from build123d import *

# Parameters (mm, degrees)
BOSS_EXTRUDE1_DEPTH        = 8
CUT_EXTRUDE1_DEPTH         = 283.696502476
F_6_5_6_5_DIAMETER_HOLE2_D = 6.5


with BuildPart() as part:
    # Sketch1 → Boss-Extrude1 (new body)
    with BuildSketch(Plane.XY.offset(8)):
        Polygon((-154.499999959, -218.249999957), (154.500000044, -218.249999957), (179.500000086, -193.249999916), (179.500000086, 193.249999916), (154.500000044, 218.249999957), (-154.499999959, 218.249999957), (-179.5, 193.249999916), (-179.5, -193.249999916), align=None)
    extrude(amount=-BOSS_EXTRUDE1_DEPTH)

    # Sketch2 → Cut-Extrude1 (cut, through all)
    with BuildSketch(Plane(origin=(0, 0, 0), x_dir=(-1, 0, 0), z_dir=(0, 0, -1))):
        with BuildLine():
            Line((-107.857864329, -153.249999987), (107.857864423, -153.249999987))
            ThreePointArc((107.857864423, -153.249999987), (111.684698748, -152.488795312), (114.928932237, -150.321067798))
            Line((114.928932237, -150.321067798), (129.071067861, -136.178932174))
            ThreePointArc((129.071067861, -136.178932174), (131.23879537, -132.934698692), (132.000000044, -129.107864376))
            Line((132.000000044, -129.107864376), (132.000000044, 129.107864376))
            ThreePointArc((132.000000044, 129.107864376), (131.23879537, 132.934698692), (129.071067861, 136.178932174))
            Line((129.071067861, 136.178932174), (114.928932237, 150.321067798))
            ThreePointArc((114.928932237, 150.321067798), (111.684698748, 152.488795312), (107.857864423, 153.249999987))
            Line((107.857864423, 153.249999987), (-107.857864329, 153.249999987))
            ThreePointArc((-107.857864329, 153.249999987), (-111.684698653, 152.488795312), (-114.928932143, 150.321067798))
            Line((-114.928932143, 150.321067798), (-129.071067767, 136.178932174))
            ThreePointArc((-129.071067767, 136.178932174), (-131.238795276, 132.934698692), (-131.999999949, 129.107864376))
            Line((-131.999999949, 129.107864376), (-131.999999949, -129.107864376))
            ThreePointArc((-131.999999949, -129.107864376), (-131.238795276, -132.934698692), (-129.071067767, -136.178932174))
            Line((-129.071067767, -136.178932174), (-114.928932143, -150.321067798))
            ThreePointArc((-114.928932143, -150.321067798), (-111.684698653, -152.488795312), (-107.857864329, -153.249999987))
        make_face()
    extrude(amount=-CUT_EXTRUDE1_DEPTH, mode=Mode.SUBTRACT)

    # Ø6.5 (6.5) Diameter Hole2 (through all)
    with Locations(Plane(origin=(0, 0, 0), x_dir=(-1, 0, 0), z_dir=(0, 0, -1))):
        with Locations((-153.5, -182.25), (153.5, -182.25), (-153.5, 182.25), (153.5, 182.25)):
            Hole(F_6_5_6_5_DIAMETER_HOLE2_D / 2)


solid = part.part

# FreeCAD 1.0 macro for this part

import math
import FreeCAD as App
import Part
import Sketcher
from FreeCAD import Vector

doc = App.newDocument("Part")
params = doc.addObject("Spreadsheet::Sheet", "Params")
for row, (alias, value) in enumerate([
    ("sketch1_width", "309 mm"),
    ("sketch1_height", "386.5 mm"),
    ("pad1_length", "8 mm"),
    ("sketch2_radius", "10 mm"),
    ("sketch2_length", "20 mm"),
    ("sketch3_diameter", "6.5 mm"),
    ("hole_diameter", "6.5 mm"),
], start=1):
    params.set(f"A{row}", alias)
    params.set(f"B{row}", "=" + value)
    params.setAlias(f"B{row}", alias)

body = doc.addObject("PartDesign::Body", "Body")

# Sketch on XY plane
sketch1 = body.newObject("Sketcher::SketchObject", "Sketch")
sketch1.AttachmentSupport = (doc.getObject("XY_Plane"), [""])
sketch1.MapMode = "FlatFace"
sketch1.AttachmentOffset = App.Placement(Vector(0, 0, 8), App.Rotation())
sketch1.addGeometry([
    Part.LineSegment(Vector(-154, -218, 0), Vector(155, -218, 0)),  # 0
    Part.LineSegment(Vector(155, -218, 0), Vector(180, -193, 0)),  # 1
    Part.LineSegment(Vector(180, -193, 0), Vector(180, 193, 0)),  # 2
    Part.LineSegment(Vector(180, 193, 0), Vector(155, 218, 0)),  # 3
    Part.LineSegment(Vector(155, 218, 0), Vector(-154, 218, 0)),  # 4
    Part.LineSegment(Vector(-154, 218, 0), Vector(-180, 193, 0)),  # 5
    Part.LineSegment(Vector(-180, 193, 0), Vector(-180, -193, 0)),  # 6
    Part.LineSegment(Vector(-180, -193, 0), Vector(-154, -218, 0)),  # 7
], False)
sketch1.addConstraint([
    Sketcher.Constraint("Coincident", 0, 2, 1, 1),
    Sketcher.Constraint("Coincident", 1, 2, 2, 1),
    Sketcher.Constraint("Coincident", 2, 2, 3, 1),
    Sketcher.Constraint("Coincident", 3, 2, 4, 1),
    Sketcher.Constraint("Coincident", 4, 2, 5, 1),
    Sketcher.Constraint("Coincident", 5, 2, 6, 1),
    Sketcher.Constraint("Coincident", 6, 2, 7, 1),
    Sketcher.Constraint("Coincident", 7, 2, 0, 1),
    Sketcher.Constraint("Horizontal", 0),
    Sketcher.Constraint("Vertical", 2),
    Sketcher.Constraint("Horizontal", 4),
    Sketcher.Constraint("Vertical", 6),
    Sketcher.Constraint("Symmetric", 0, 2, 4, 2, -1, 1),
    Sketcher.Constraint("Symmetric", 1, 2, 5, 2, -1, 1),
    Sketcher.Constraint("Perpendicular", 1, 3),
    Sketcher.Constraint("Perpendicular", 5, 7),
    Sketcher.Constraint("Horizontal", 2, 2, 5, 2),
    Sketcher.Constraint("Horizontal", 1, 2, 6, 2),
    Sketcher.Constraint("Vertical", 0, 2, 3, 2),
    Sketcher.Constraint("DistanceX", 0, 1, 0, 2, 309.0),
    Sketcher.Constraint("DistanceY", 2, 1, 2, 2, 386.5),
    Sketcher.Constraint("DistanceX", 0, 2, 1, 2, 25.0),
])
sketch1.setExpression("Constraints[19]", "Params.sketch1_width")
sketch1.setExpression("Constraints[20]", "Params.sketch1_height")
pad1 = body.newObject("PartDesign::Pad", "Pad")
pad1.Profile = sketch1
pad1.setExpression("Length", "Params.pad1_length")
pad1.Reversed = True

# Sketch on XY plane
sketch2 = body.newObject("Sketcher::SketchObject", "Sketch001")
sketch2.AttachmentSupport = (doc.getObject("XY_Plane"), [""])
sketch2.MapMode = "FlatFace"
sketch2.addGeometry([
    Part.LineSegment(Vector(108, -153, 0), Vector(-108, -153, 0)),  # 0
    Part.ArcOfCircle(Part.Circle(Vector(-108, -143, 0), Vector(0, 0, 1), 10), math.radians(-135), math.radians(-90)),  # 1
    Part.LineSegment(Vector(-115, -150, 0), Vector(-129, -136, 0)),  # 2
    Part.ArcOfCircle(Part.Circle(Vector(-122, -129, 0), Vector(0, 0, 1), 10), math.radians(-180), math.radians(-135)),  # 3
    Part.LineSegment(Vector(-132, -129, 0), Vector(-132, 129, 0)),  # 4
    Part.ArcOfCircle(Part.Circle(Vector(-122, 129, 0), Vector(0, 0, 1), 10), math.radians(135), math.radians(180)),  # 5
    Part.LineSegment(Vector(-129, 136, 0), Vector(-115, 150, 0)),  # 6
    Part.ArcOfCircle(Part.Circle(Vector(-108, 143, 0), Vector(0, 0, 1), 10), math.radians(90), math.radians(135)),  # 7
    Part.LineSegment(Vector(-108, 153, 0), Vector(108, 153, 0)),  # 8
    Part.ArcOfCircle(Part.Circle(Vector(108, 143, 0), Vector(0, 0, 1), 10), math.radians(45), math.radians(90)),  # 9
    Part.LineSegment(Vector(115, 150, 0), Vector(129, 136, 0)),  # 10
    Part.ArcOfCircle(Part.Circle(Vector(122, 129, 0), Vector(0, 0, 1), 10), math.radians(0), math.radians(45)),  # 11
    Part.LineSegment(Vector(132, 129, 0), Vector(132, -129, 0)),  # 12
    Part.ArcOfCircle(Part.Circle(Vector(122, -129, 0), Vector(0, 0, 1), 10), math.radians(-45), math.radians(0)),  # 13
    Part.LineSegment(Vector(129, -136, 0), Vector(115, -150, 0)),  # 14
    Part.ArcOfCircle(Part.Circle(Vector(108, -143, 0), Vector(0, 0, 1), 10), math.radians(-90), math.radians(-45)),  # 15
], False)
sketch2.addConstraint([
    Sketcher.Constraint("Tangent", 0, 2, 1, 2),
    Sketcher.Constraint("Tangent", 1, 1, 2, 1),
    Sketcher.Constraint("Tangent", 2, 2, 3, 2),
    Sketcher.Constraint("Tangent", 3, 1, 4, 1),
    Sketcher.Constraint("Tangent", 4, 2, 5, 2),
    Sketcher.Constraint("Tangent", 5, 1, 6, 1),
    Sketcher.Constraint("Tangent", 6, 2, 7, 2),
    Sketcher.Constraint("Tangent", 7, 1, 8, 1),
    Sketcher.Constraint("Tangent", 8, 2, 9, 2),
    Sketcher.Constraint("Tangent", 9, 1, 10, 1),
    Sketcher.Constraint("Tangent", 10, 2, 11, 2),
    Sketcher.Constraint("Tangent", 11, 1, 12, 1),
    Sketcher.Constraint("Tangent", 12, 2, 13, 2),
    Sketcher.Constraint("Tangent", 13, 1, 14, 1),
    Sketcher.Constraint("Tangent", 14, 2, 15, 2),
    Sketcher.Constraint("Tangent", 15, 1, 0, 1),
    Sketcher.Constraint("Horizontal", 0),
    Sketcher.Constraint("Vertical", 4),
    Sketcher.Constraint("Horizontal", 8),
    Sketcher.Constraint("Vertical", 12),
    Sketcher.Constraint("Equal", 1, 3),
    Sketcher.Constraint("Equal", 3, 5),
    Sketcher.Constraint("Equal", 5, 7),
    Sketcher.Constraint("Equal", 7, 9),
    Sketcher.Constraint("Equal", 9, 11),
    Sketcher.Constraint("Equal", 11, 13),
    Sketcher.Constraint("Equal", 13, 15),
    Sketcher.Constraint("Symmetric", 1, 3, 9, 3, -1, 1),
    Sketcher.Constraint("Symmetric", 3, 3, 11, 3, -1, 1),
    Sketcher.Constraint("Symmetric", 5, 1, 13, 1, -1, 1),
    Sketcher.Constraint("Symmetric", 6, 2, 9, 1, -2),
    Sketcher.Constraint("Perpendicular", 2, 6),
    Sketcher.Constraint("Radius", 1, 10.0),
    Sketcher.Constraint("Distance", 2, 20.0),
    Sketcher.Constraint("DistanceX", 3, 3, -1, 1, 122.0),
    Sketcher.Constraint("DistanceY", 1, 3, 7, 3, 286.5),
])
sketch2.setExpression("Constraints[32]", "Params.sketch2_radius")
sketch2.setExpression("Constraints[33]", "Params.sketch2_length")
pocket1 = body.newObject("PartDesign::Pocket", "Pocket")
pocket1.Profile = sketch2
pocket1.Type = "ThroughAll"
pocket1.Reversed = True

# Sketch on XY plane
sketch3 = body.newObject("Sketcher::SketchObject", "Sketch002")
sketch3.AttachmentSupport = (doc.getObject("XY_Plane"), [""])
sketch3.MapMode = "FlatFace"
sketch3.addGeometry([
    Part.Circle(Vector(153.5, -182.2, 0), Vector(0, 0, 1), 3.2),
    Part.Circle(Vector(-153.5, -182.2, 0), Vector(0, 0, 1), 3.2),
    Part.Circle(Vector(153.5, 182.2, 0), Vector(0, 0, 1), 3.2),
    Part.Circle(Vector(-153.5, 182.2, 0), Vector(0, 0, 1), 3.2),
], False)
sketch3.addConstraint([
    Sketcher.Constraint("Equal", 0, 1),
    Sketcher.Constraint("Equal", 1, 2),
    Sketcher.Constraint("Equal", 2, 3),
    Sketcher.Constraint("Symmetric", 1, 3, 2, 3, -1, 1),
    Sketcher.Constraint("Symmetric", 0, 3, 3, 3, -1, 1),
    Sketcher.Constraint("Symmetric", 0, 3, 1, 3, -2),
    Sketcher.Constraint("Diameter", 0, 6.5),
    Sketcher.Constraint("DistanceX", 1, 3, 0, 3, 307.0),
    Sketcher.Constraint("DistanceY", 0, 3, 2, 3, 364.5),
])
sketch3.setExpression("Constraints[6]", "Params.sketch3_diameter")
doc.recompute()
hole = body.newObject("PartDesign::Hole", "Hole")
hole.Profile = sketch3
hole.ThreadType = "None"
hole.setExpression("Diameter", "Params.hole_diameter")
hole.DepthType = "ThroughAll"
hole.Reversed = True

doc.recompute()
